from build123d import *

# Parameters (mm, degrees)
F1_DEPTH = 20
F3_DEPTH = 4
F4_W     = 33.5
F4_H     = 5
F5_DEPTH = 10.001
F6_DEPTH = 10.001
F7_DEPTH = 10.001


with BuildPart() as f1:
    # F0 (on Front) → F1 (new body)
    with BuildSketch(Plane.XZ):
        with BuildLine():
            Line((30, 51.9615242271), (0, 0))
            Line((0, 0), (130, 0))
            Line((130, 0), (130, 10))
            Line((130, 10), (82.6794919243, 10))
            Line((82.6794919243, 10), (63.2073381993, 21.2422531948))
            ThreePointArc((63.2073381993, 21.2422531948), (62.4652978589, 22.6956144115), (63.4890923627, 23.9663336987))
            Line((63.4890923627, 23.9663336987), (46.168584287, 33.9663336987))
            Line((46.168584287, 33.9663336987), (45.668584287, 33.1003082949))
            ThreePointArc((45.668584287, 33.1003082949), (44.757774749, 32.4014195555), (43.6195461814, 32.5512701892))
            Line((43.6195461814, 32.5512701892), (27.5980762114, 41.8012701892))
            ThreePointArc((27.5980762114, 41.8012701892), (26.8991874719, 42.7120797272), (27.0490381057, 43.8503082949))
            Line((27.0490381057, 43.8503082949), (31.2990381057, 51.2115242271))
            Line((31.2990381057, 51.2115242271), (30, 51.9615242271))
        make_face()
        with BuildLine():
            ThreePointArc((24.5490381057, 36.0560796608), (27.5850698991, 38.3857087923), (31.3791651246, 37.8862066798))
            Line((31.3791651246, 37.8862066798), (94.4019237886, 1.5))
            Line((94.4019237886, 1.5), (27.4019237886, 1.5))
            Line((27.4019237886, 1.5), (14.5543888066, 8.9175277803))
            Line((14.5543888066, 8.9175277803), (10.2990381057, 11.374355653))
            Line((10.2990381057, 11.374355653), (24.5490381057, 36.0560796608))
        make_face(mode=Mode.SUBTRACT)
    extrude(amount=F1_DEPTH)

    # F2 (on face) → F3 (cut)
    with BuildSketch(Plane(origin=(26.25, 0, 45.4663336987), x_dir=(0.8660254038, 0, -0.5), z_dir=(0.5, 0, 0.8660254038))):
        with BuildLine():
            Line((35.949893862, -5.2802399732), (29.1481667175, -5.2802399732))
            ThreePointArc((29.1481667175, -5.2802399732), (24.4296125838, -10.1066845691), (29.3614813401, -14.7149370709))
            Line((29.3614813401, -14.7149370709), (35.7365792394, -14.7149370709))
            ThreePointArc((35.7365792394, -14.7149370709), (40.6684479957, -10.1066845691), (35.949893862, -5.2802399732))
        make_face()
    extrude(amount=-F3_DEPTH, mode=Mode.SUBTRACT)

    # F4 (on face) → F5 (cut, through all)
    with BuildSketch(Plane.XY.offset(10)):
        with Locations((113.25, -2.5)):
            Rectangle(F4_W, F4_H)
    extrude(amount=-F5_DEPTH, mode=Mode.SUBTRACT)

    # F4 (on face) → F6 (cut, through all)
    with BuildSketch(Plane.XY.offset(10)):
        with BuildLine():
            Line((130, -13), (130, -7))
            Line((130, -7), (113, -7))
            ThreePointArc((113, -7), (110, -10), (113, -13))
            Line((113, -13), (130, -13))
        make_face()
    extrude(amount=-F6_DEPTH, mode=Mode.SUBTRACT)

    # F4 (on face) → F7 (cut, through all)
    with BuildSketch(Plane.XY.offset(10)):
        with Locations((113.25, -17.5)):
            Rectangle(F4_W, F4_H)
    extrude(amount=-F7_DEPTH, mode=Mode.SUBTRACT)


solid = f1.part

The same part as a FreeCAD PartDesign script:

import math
import FreeCAD as App
import Part
import Sketcher
from FreeCAD import Vector
Q = App.Units.Quantity

doc = App.newDocument("Part")
params = doc.addObject("Spreadsheet::Sheet", "Params")
for row, (alias, value) in enumerate([
    ("sketch1_radius", "5 mm"),
    ("sketch1_radius2", "1.5 mm"),
    ("sketch1_width", "130 mm"),
    ("sketch1_width2", "67 mm"),
    ("sketch1_height", "10 mm"),
    ("pad1_length", "20 mm"),
    ("pocket1_length", "4 mm"),
    ("sketch3_height", "5 mm"),
    ("sketch3_width", "33.5 mm"),
    ("sketch4_radius", "3 mm"),
    ("sketch4_width", "17 mm"),
    ("sketch5_height", "5 mm"),
    ("sketch5_width", "33.5 mm"),
], start=1):
    params.set(f"A{row}", alias)
    params.set(f"B{row}", "=" + value)
    params.setAlias(f"B{row}", alias)

body = doc.addObject("PartDesign::Body", "Body")

sketch1 = body.newObject("Sketcher::SketchObject", "Sketch")
sketch1.AttachmentSupport = (doc.getObject("XZ_Plane"), [""])
sketch1.MapMode = "FlatFace"
sketch1.addGeometry([
    Part.LineSegment(Vector(30, 52, 0), Vector(0, 0, 0)),
    Part.LineSegment(Vector(0, 0, 0), Vector(130, 0, 0)),
    Part.LineSegment(Vector(130, 0, 0), Vector(130, 10, 0)),
    Part.LineSegment(Vector(130, 10, 0), Vector(82.7, 10, 0)),
    Part.LineSegment(Vector(82.7, 10, 0), Vector(63.2, 21.2, 0)),
    Part.ArcOfCircle(Part.Circle(Vector(64, 22.5, 0), Vector(0, 0, 1), 1.5), math.radians(108), math.radians(240)),
    Part.LineSegment(Vector(63.5, 24, 0), Vector(46.2, 34, 0)),
    Part.LineSegment(Vector(46.2, 34, 0), Vector(45.7, 33.1, 0)),
    Part.ArcOfCircle(Part.Circle(Vector(44.4, 33.9, 0), Vector(0, 0, 1), 1.5), math.radians(-120), math.radians(-30)),
    Part.LineSegment(Vector(43.6, 32.6, 0), Vector(27.6, 41.8, 0)),
    Part.ArcOfCircle(Part.Circle(Vector(28.3, 43.1, 0), Vector(0, 0, 1), 1.5), math.radians(150), math.radians(240)),
    Part.LineSegment(Vector(27, 43.9, 0), Vector(31.3, 51.2, 0)),
    Part.LineSegment(Vector(31.3, 51.2, 0), Vector(30, 52, 0)),
    Part.LineSegment(Vector(10.3, 11.4, 0), Vector(24.5, 36.1, 0)),
    Part.ArcOfCircle(Part.Circle(Vector(28.9, 33.6, 0), Vector(0, 0, 1), 5), math.radians(60), math.radians(150)),
    Part.LineSegment(Vector(31.4, 37.9, 0), Vector(94.4, 1.5, 0)),
    Part.LineSegment(Vector(94.4, 1.5, 0), Vector(27.4, 1.5, 0)),
    Part.LineSegment(Vector(27.4, 1.5, 0), Vector(14.6, 8.9, 0)),
    Part.LineSegment(Vector(14.6, 8.9, 0), Vector(10.3, 11.4, 0)),
], False)
sketch1.addConstraint([
    Sketcher.Constraint("Coincident", 0, 2, 1, 1),
    Sketcher.Constraint("Coincident", 1, 2, 2, 1),
    Sketcher.Constraint("Coincident", 2, 2, 3, 1),
    Sketcher.Constraint("Coincident", 3, 2, 4, 1),
    Sketcher.Constraint("Tangent", 4, 2, 5, 2),
    Sketcher.Constraint("Coincident", 5, 1, 6, 1),
    Sketcher.Constraint("Coincident", 6, 2, 7, 1),
    Sketcher.Constraint("Tangent", 7, 2, 8, 2),
    Sketcher.Constraint("Tangent", 8, 1, 9, 1),
    Sketcher.Constraint("Tangent", 9, 2, 10, 2),
    Sketcher.Constraint("Tangent", 10, 1, 11, 1),
    Sketcher.Constraint("Coincident", 11, 2, 12, 1),
    Sketcher.Constraint("Coincident", 12, 2, 0, 1),
    Sketcher.Constraint("Tangent", 13, 2, 14, 2),
    Sketcher.Constraint("Tangent", 14, 1, 15, 1),
    Sketcher.Constraint("Coincident", 15, 2, 16, 1),
    Sketcher.Constraint("Coincident", 16, 2, 17, 1),
    Sketcher.Constraint("Coincident", 17, 2, 18, 1),
    Sketcher.Constraint("Coincident", 18, 2, 13, 1),
    Sketcher.Constraint("Horizontal", 1),
    Sketcher.Constraint("Vertical", 2),
    Sketcher.Constraint("Horizontal", 3),
    Sketcher.Constraint("Horizontal", 16),
    Sketcher.Constraint("Coincident", 0, 2, -1, 1),
    Sketcher.Constraint("Equal", 5, 8),
    Sketcher.Constraint("Equal", 8, 10),
    Sketcher.Constraint("Perpendicular", 0, 4),
    Sketcher.Constraint("Parallel", 4, 6),
    Sketcher.Constraint("Perpendicular", 6, 7),
    Sketcher.Constraint("Perpendicular", 7, 9),
    Sketcher.Constraint("Perpendicular", 9, 11),
    Sketcher.Constraint("Perpendicular", 11, 12),
    Sketcher.Constraint("Perpendicular", 12, 13),
    Sketcher.Constraint("Perpendicular", 13, 15),
    Sketcher.Constraint("Parallel", 15, 17),
    Sketcher.Constraint("Parallel", 17, 18),
    Sketcher.Constraint("Radius", 14, 5.0),
    Sketcher.Constraint("Radius", 5, 1.5),
    Sketcher.Constraint("DistanceX", 1, 1, 1, 2, 130.0),
    Sketcher.Constraint("DistanceX", 16, 2, 16, 1, 67.0),
    Sketcher.Constraint("DistanceY", 2, 1, 2, 2, 10.0),
    Sketcher.Constraint("Angle", 0, Q("-120 deg")),
    Sketcher.Constraint("Distance", 0, 60.0),
    Sketcher.Constraint("Distance", 6, 20.0),
    Sketcher.Constraint("Distance", 7, 1.0),
    Sketcher.Constraint("DistanceY", 7, 2, 10, 3, 10.0),
    Sketcher.Constraint("Distance", 11, 8.5),
    Sketcher.Constraint("Distance", 12, 1.5),
    Sketcher.Constraint("DistanceY", -1, 1, 15, 2, 1.5),
    Sketcher.Constraint("DistanceX", 13, 2, 10, 1, 2.5),
    Sketcher.Constraint("DistanceX", 3, 2, 3, 1, 47.320508),
    Sketcher.Constraint("DistanceY", 14, 1, 10, 3, 5.214102),
    Sketcher.Constraint("DistanceX", -1, 1, 17, 2, 14.554389),
])
sketch1.setExpression("Constraints[36]", "Params.sketch1_radius")
sketch1.setExpression("Constraints[37]", "Params.sketch1_radius2")
sketch1.setExpression("Constraints[38]", "Params.sketch1_width")
sketch1.setExpression("Constraints[39]", "Params.sketch1_width2")
sketch1.setExpression("Constraints[40]", "Params.sketch1_height")
pad1 = body.newObject("PartDesign::Pad", "Pad")
pad1.Profile = sketch1
pad1.setExpression("Length", "Params.pad1_length")

sketch2 = body.newObject("Sketcher::SketchObject", "Sketch001")
sketch2.Placement = App.Placement(Vector(26.25, 0, 45.466334), App.Rotation(Vector(0.866025404, 0, -0.5), Vector(0, 1, 0), Vector(0.5, 0, 0.866025404), "ZXY"))
sketch2.addGeometry([
    Part.LineSegment(Vector(35.9, -5.3, 0), Vector(29.1, -5.3, 0)),
    Part.ArcOfCircle(Part.Circle(Vector(29.1, -10, 0), Vector(0, 0, 1), 4.7), math.radians(90), math.radians(273)),
    Part.LineSegment(Vector(29.4, -14.7, 0), Vector(35.7, -14.7, 0)),
    Part.ArcOfCircle(Part.Circle(Vector(35.9, -10, 0), Vector(0, 0, 1), 4.7), math.radians(-93), math.radians(90)),
], False)
sketch2.addConstraint([
    Sketcher.Constraint("Tangent", 0, 2, 1, 1),
    Sketcher.Constraint("Coincident", 1, 2, 2, 1),
    Sketcher.Constraint("Coincident", 2, 2, 3, 1),
    Sketcher.Constraint("Tangent", 3, 2, 0, 1),
    Sketcher.Constraint("Horizontal", 0),
    Sketcher.Constraint("Horizontal", 2),
    Sketcher.Constraint("Equal", 1, 3),
    Sketcher.Constraint("DistanceY", 1, 3, -1, 1, 10.0),
    Sketcher.Constraint("Radius", 1, 4.71976),
    Sketcher.Constraint("DistanceX", 0, 2, 0, 1, 6.801727),
    Sketcher.Constraint("DistanceX", 2, 1, 2, 2, 6.375098),
    Sketcher.Constraint("DistanceX", -1, 1, 1, 2, 29.361481),
])
pocket1 = body.newObject("PartDesign::Pocket", "Pocket")
pocket1.Profile = sketch2
pocket1.setExpression("Length", "Params.pocket1_length")

sketch3 = body.newObject("Sketcher::SketchObject", "Sketch002")
sketch3.AttachmentSupport = (doc.getObject("XY_Plane"), [""])
sketch3.MapMode = "FlatFace"
sketch3.AttachmentOffset = App.Placement(Vector(0, 0, 10), App.Rotation())
sketch3.addGeometry([
    Part.LineSegment(Vector(96, 0, 0), Vector(96, -5, 0)),
    Part.LineSegment(Vector(96, -5, 0), Vector(130, -5, 0)),
    Part.LineSegment(Vector(130, -5, 0), Vector(130, 0, 0)),
    Part.LineSegment(Vector(130, 0, 0), Vector(96, 0, 0)),
], False)
sketch3.addConstraint([
    Sketcher.Constraint("Coincident", 0, 2, 1, 1),
    Sketcher.Constraint("Coincident", 1, 2, 2, 1),
    Sketcher.Constraint("Coincident", 2, 2, 3, 1),
    Sketcher.Constraint("Coincident", 3, 2, 0, 1),
    Sketcher.Constraint("Vertical", 0),
    Sketcher.Constraint("Horizontal", 1),
    Sketcher.Constraint("Vertical", 2),
    Sketcher.Constraint("Horizontal", 3),
    Sketcher.Constraint("PointOnObject", 2, 2, -1),
    Sketcher.Constraint("DistanceY", 0, 2, 0, 1, 5.0),
    Sketcher.Constraint("DistanceX", 1, 1, 1, 2, 33.5),
    Sketcher.Constraint("DistanceX", -1, 1, 1, 2, 130.0),
])
sketch3.setExpression("Constraints[9]", "Params.sketch3_height")
sketch3.setExpression("Constraints[10]", "Params.sketch3_width")
pocket2 = body.newObject("PartDesign::Pocket", "Pocket001")
pocket2.Profile = sketch3
pocket2.Type = "ThroughAll"

sketch4 = body.newObject("Sketcher::SketchObject", "Sketch003")
sketch4.AttachmentSupport = (doc.getObject("XY_Plane"), [""])
sketch4.MapMode = "FlatFace"
sketch4.AttachmentOffset = App.Placement(Vector(0, 0, 10), App.Rotation())
sketch4.addGeometry([
    Part.LineSegment(Vector(130, -13, 0), Vector(130, -7, 0)),
    Part.LineSegment(Vector(130, -7, 0), Vector(113, -7, 0)),
    Part.ArcOfCircle(Part.Circle(Vector(113, -10, 0), Vector(0, 0, 1), 3), math.radians(90), math.radians(270)),
    Part.LineSegment(Vector(113, -13, 0), Vector(130, -13, 0)),
], False)
sketch4.addConstraint([
    Sketcher.Constraint("Coincident", 0, 2, 1, 1),
    Sketcher.Constraint("Tangent", 1, 2, 2, 1),
    Sketcher.Constraint("Tangent", 2, 2, 3, 1),
    Sketcher.Constraint("Coincident", 3, 2, 0, 1),
    Sketcher.Constraint("Vertical", 0),
    Sketcher.Constraint("Horizontal", 1),
    Sketcher.Constraint("Horizontal", 3),
    Sketcher.Constraint("Radius", 2, 3.0),
    Sketcher.Constraint("DistanceX", 1, 2, 1, 1, 17.0),
    Sketcher.Constraint("DistanceX", -1, 1, 2, 3, 113.0),
    Sketcher.Constraint("DistanceY", 2, 3, -1, 1, 10.0),
])
sketch4.setExpression("Constraints[7]", "Params.sketch4_radius")
sketch4.setExpression("Constraints[8]", "Params.sketch4_width")
pocket3 = body.newObject("PartDesign::Pocket", "Pocket002")
pocket3.Profile = sketch4
pocket3.Type = "ThroughAll"

sketch5 = body.newObject("Sketcher::SketchObject", "Sketch004")
sketch5.AttachmentSupport = (doc.getObject("XY_Plane"), [""])
sketch5.MapMode = "FlatFace"
sketch5.AttachmentOffset = App.Placement(Vector(0, 0, 10), App.Rotation())
sketch5.addGeometry([
    Part.LineSegment(Vector(96, -15, 0), Vector(96, -20, 0)),
    Part.LineSegment(Vector(96, -20, 0), Vector(130, -20, 0)),
    Part.LineSegment(Vector(130, -20, 0), Vector(130, -15, 0)),
    Part.LineSegment(Vector(130, -15, 0), Vector(96, -15, 0)),
], False)
sketch5.addConstraint([
    Sketcher.Constraint("Coincident", 0, 2, 1, 1),
    Sketcher.Constraint("Coincident", 1, 2, 2, 1),
    Sketcher.Constraint("Coincident", 2, 2, 3, 1),
    Sketcher.Constraint("Coincident", 3, 2, 0, 1),
    Sketcher.Constraint("Vertical", 0),
    Sketcher.Constraint("Horizontal", 1),
    Sketcher.Constraint("Vertical", 2),
    Sketcher.Constraint("Horizontal", 3),
    Sketcher.Constraint("DistanceY", 0, 2, 0, 1, 5.0),
    Sketcher.Constraint("DistanceX", 1, 1, 1, 2, 33.5),
    Sketcher.Constraint("DistanceY", 0, 2, -1, 1, 20.0),
    Sketcher.Constraint("DistanceX", -1, 1, 1, 2, 130.0),
])
sketch5.setExpression("Constraints[8]", "Params.sketch5_height")
sketch5.setExpression("Constraints[9]", "Params.sketch5_width")
pocket4 = body.newObject("PartDesign::Pocket", "Pocket003")
pocket4.Profile = sketch5
pocket4.Type = "ThroughAll"

doc.recompute()
